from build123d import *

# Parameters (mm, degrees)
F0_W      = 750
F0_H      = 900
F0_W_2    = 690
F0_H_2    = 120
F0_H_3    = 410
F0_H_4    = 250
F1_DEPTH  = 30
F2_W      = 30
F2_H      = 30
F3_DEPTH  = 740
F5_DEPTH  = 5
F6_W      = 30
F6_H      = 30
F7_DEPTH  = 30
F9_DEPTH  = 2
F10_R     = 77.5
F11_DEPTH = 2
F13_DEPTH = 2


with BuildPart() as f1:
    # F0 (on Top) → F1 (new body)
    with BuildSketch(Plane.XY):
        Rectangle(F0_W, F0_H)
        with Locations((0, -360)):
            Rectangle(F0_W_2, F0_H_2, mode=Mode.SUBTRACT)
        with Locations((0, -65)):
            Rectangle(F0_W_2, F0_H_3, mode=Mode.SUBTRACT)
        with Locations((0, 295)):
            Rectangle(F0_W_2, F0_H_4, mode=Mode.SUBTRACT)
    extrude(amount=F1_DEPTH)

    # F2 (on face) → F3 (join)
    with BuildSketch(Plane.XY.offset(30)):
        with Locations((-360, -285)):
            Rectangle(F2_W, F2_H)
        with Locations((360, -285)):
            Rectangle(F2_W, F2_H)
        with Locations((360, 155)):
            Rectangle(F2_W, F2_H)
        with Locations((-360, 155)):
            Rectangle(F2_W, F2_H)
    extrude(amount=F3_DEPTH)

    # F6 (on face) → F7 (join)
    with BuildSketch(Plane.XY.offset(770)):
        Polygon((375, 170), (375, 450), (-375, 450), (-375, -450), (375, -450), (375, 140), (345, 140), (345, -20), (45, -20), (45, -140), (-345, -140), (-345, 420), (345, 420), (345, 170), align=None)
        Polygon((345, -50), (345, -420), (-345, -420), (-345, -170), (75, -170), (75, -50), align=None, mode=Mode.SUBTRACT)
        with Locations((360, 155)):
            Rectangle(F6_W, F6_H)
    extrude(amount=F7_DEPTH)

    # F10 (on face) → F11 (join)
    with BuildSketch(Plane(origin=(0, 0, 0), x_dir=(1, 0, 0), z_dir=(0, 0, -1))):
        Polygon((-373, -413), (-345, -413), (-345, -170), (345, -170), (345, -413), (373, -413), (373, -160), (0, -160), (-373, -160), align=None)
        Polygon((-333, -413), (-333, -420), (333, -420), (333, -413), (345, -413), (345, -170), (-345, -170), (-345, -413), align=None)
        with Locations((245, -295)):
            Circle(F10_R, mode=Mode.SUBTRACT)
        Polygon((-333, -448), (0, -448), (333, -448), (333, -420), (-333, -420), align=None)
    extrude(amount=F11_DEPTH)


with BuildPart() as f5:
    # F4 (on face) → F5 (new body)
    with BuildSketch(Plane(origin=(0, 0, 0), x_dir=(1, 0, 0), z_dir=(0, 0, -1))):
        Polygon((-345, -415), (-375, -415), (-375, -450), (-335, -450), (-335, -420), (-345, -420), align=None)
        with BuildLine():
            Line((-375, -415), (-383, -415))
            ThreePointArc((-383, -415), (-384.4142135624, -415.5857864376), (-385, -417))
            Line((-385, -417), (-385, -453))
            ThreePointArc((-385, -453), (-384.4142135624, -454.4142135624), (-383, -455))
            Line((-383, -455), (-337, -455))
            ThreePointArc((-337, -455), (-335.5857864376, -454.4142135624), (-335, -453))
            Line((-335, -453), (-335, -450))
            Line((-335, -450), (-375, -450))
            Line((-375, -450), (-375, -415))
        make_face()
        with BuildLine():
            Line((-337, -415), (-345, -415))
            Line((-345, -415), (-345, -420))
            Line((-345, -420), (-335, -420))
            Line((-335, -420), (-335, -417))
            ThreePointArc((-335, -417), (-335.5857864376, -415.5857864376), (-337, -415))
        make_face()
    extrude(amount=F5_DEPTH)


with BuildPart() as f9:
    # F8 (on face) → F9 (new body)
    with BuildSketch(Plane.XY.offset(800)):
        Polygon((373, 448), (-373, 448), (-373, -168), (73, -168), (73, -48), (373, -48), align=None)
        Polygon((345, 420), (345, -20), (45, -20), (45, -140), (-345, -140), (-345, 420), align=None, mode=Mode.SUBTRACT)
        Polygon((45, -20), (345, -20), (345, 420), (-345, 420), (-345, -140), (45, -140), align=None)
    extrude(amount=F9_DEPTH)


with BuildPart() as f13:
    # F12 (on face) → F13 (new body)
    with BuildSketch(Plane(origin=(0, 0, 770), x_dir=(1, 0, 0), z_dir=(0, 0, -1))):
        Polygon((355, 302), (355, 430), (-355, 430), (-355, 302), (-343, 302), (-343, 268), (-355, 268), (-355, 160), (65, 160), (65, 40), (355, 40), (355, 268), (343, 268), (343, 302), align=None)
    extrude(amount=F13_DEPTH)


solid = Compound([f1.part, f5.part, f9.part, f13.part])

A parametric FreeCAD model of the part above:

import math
import FreeCAD as App
import Part
import Sketcher
Q = App.Units.Quantity

doc = App.newDocument("Part")
body = doc.addObject("PartDesign::Body", "Body")

# Sketch on XY plane
sketch1 = body.newObject("Sketcher::SketchObject", "Sketch")
sketch1.AttachmentSupport = (doc.getObject("XY_Plane"), [""])
sketch1.MapMode = "FlatFace"
sketch1.addGeometry([
    Part.LineSegment(App.Vector(-375, 450, 0), App.Vector(-375, -450, 0)),  # 0
    Part.LineSegment(App.Vector(-375, -450, 0), App.Vector(375, -450, 0)),  # 1
    Part.LineSegment(App.Vector(375, -450, 0), App.Vector(375, 450, 0)),  # 2
    Part.LineSegment(App.Vector(375, 450, 0), App.Vector(-375, 450, 0)),  # 3
    Part.LineSegment(App.Vector(345, -420, 0), App.Vector(-345, -420, 0)),  # 4
    Part.LineSegment(App.Vector(-345, -420, 0), App.Vector(-345, -300, 0)),  # 5
    Part.LineSegment(App.Vector(-345, -300, 0), App.Vector(345, -300, 0)),  # 6
    Part.LineSegment(App.Vector(345, -300, 0), App.Vector(345, -420, 0)),  # 7
    Part.LineSegment(App.Vector(345, -270, 0), App.Vector(-345, -270, 0)),  # 8
    Part.LineSegment(App.Vector(-345, -270, 0), App.Vector(-345, 140, 0)),  # 9
    Part.LineSegment(App.Vector(-345, 140, 0), App.Vector(345, 140, 0)),  # 10
    Part.LineSegment(App.Vector(345, 140, 0), App.Vector(345, -270, 0)),  # 11
    Part.LineSegment(App.Vector(345, 170, 0), App.Vector(-345, 170, 0)),  # 12
    Part.LineSegment(App.Vector(-345, 170, 0), App.Vector(-345, 420, 0)),  # 13
    Part.LineSegment(App.Vector(-345, 420, 0), App.Vector(345, 420, 0)),  # 14
    Part.LineSegment(App.Vector(345, 420, 0), App.Vector(345, 170, 0)),  # 15
], False)
sketch1.addConstraint([
    Sketcher.Constraint("Coincident", 0, 2, 1, 1),
    Sketcher.Constraint("Coincident", 1, 2, 2, 1),
    Sketcher.Constraint("Coincident", 2, 2, 3, 1),
    Sketcher.Constraint("Coincident", 3, 2, 0, 1),
    Sketcher.Constraint("Coincident", 4, 2, 5, 1),
    Sketcher.Constraint("Coincident", 5, 2, 6, 1),
    Sketcher.Constraint("Coincident", 6, 2, 7, 1),
    Sketcher.Constraint("Coincident", 7, 2, 4, 1),
    Sketcher.Constraint("Coincident", 8, 2, 9, 1),
    Sketcher.Constraint("Coincident", 9, 2, 10, 1),
    Sketcher.Constraint("Coincident", 10, 2, 11, 1),
    Sketcher.Constraint("Coincident", 11, 2, 8, 1),
    Sketcher.Constraint("Coincident", 12, 2, 13, 1),
    Sketcher.Constraint("Coincident", 13, 2, 14, 1),
    Sketcher.Constraint("Coincident", 14, 2, 15, 1),
    Sketcher.Constraint("Coincident", 15, 2, 12, 1),
    Sketcher.Constraint("Vertical", 0),
    Sketcher.Constraint("Horizontal", 1),
    Sketcher.Constraint("Vertical", 2),
    Sketcher.Constraint("Horizontal", 3),
    Sketcher.Constraint("Horizontal", 4),
    Sketcher.Constraint("Vertical", 5),
    Sketcher.Constraint("Horizontal", 6),
    Sketcher.Constraint("Vertical", 7),
    Sketcher.Constraint("Horizontal", 8),
    Sketcher.Constraint("Vertical", 9),
    Sketcher.Constraint("Horizontal", 10),
    Sketcher.Constraint("Vertical", 11),
    Sketcher.Constraint("Horizontal", 12),
    Sketcher.Constraint("Vertical", 13),
    Sketcher.Constraint("Horizontal", 14),
    Sketcher.Constraint("Vertical", 15),
    Sketcher.Constraint("Symmetric", 0, 2, 2, 2, -1, 1),
    Sketcher.Constraint("Symmetric", 7, 2, 13, 2, -1, 1),
    Sketcher.Constraint("Vertical", 5, 2, 8, 2),
    Sketcher.Constraint("Vertical", 7, 2, 10, 2),
    Sketcher.Constraint("Vertical", 9, 2, 12, 2),
    Sketcher.Constraint("Vertical", 11, 2, 14, 2),
    Sketcher.Constraint("DistanceX", 1, 1, 1, 2, Q("750 mm")),
    Sketcher.Constraint("DistanceX", 4, 2, 4, 1, Q("690 mm")),
    Sketcher.Constraint("DistanceY", 0, 2, 0, 1, Q("900 mm")),
    Sketcher.Constraint("DistanceY", 5, 1, 5, 2, Q("120 mm")),
    Sketcher.Constraint("DistanceY", 9, 1, 9, 2, Q("410 mm")),
    Sketcher.Constraint("DistanceY", 13, 1, 13, 2, Q("250 mm")),
    Sketcher.Constraint("DistanceY", 4, 2, -1, 1, Q("420 mm")),
    Sketcher.Constraint("DistanceY", 8, 2, -1, 1, Q("270 mm")),
])
pad1 = body.newObject("PartDesign::Pad", "Pad")
pad1.Profile = sketch1
pad1.Length = 30

# Sketch on XY plane
sketch2 = body.newObject("Sketcher::SketchObject", "Sketch001")
sketch2.AttachmentSupport = (doc.getObject("XY_Plane"), [""])
sketch2.MapMode = "FlatFace"
sketch2.AttachmentOffset = App.Placement(App.Vector(0, 0, 30), App.Rotation())
sketch2.addGeometry([
    Part.LineSegment(App.Vector(-375, -270, 0), App.Vector(-375, -300, 0)),  # 0
    Part.LineSegment(App.Vector(-375, -300, 0), App.Vector(-345, -300, 0)),  # 1
    Part.LineSegment(App.Vector(-345, -300, 0), App.Vector(-345, -270, 0)),  # 2
    Part.LineSegment(App.Vector(-345, -270, 0), App.Vector(-375, -270, 0)),  # 3
    Part.LineSegment(App.Vector(345, -270, 0), App.Vector(345, -300, 0)),  # 4
    Part.LineSegment(App.Vector(345, -300, 0), App.Vector(375, -300, 0)),  # 5
    Part.LineSegment(App.Vector(375, -300, 0), App.Vector(375, -270, 0)),  # 6
    Part.LineSegment(App.Vector(375, -270, 0), App.Vector(345, -270, 0)),  # 7
    Part.LineSegment(App.Vector(345, 170, 0), App.Vector(345, 140, 0)),  # 8
    Part.LineSegment(App.Vector(345, 140, 0), App.Vector(375, 140, 0)),  # 9
    Part.LineSegment(App.Vector(375, 140, 0), App.Vector(375, 170, 0)),  # 10
    Part.LineSegment(App.Vector(375, 170, 0), App.Vector(345, 170, 0)),  # 11
    Part.LineSegment(App.Vector(-375, 170, 0), App.Vector(-375, 140, 0)),  # 12
    Part.LineSegment(App.Vector(-375, 140, 0), App.Vector(-345, 140, 0)),  # 13
    Part.LineSegment(App.Vector(-345, 140, 0), App.Vector(-345, 170, 0)),  # 14
    Part.LineSegment(App.Vector(-345, 170, 0), App.Vector(-375, 170, 0)),  # 15
], False)
sketch2.addConstraint([
    Sketcher.Constraint("Coincident", 0, 2, 1, 1),
    Sketcher.Constraint("Coincident", 1, 2, 2, 1),
    Sketcher.Constraint("Coincident", 2, 2, 3, 1),
    Sketcher.Constraint("Coincident", 3, 2, 0, 1),
    Sketcher.Constraint("Coincident", 4, 2, 5, 1),
    Sketcher.Constraint("Coincident", 5, 2, 6, 1),
    Sketcher.Constraint("Coincident", 6, 2, 7, 1),
    Sketcher.Constraint("Coincident", 7, 2, 4, 1),
    Sketcher.Constraint("Coincident", 8, 2, 9, 1),
    Sketcher.Constraint("Coincident", 9, 2, 10, 1),
    Sketcher.Constraint("Coincident", 10, 2, 11, 1),
    Sketcher.Constraint("Coincident", 11, 2, 8, 1),
    Sketcher.Constraint("Coincident", 12, 2, 13, 1),
    Sketcher.Constraint("Coincident", 13, 2, 14, 1),
    Sketcher.Constraint("Coincident", 14, 2, 15, 1),
    Sketcher.Constraint("Coincident", 15, 2, 12, 1),
    Sketcher.Constraint("Vertical", 0),
    Sketcher.Constraint("Horizontal", 1),
    Sketcher.Constraint("Vertical", 2),
    Sketcher.Constraint("Horizontal", 3),
    Sketcher.Constraint("Vertical", 4),
    Sketcher.Constraint("Horizontal", 5),
    Sketcher.Constraint("Vertical", 6),
    Sketcher.Constraint("Horizontal", 7),
    Sketcher.Constraint("Vertical", 8),
    Sketcher.Constraint("Horizontal", 9),
    Sketcher.Constraint("Vertical", 10),
    Sketcher.Constraint("Horizontal", 11),
    Sketcher.Constraint("Vertical", 12),
    Sketcher.Constraint("Horizontal", 13),
    Sketcher.Constraint("Vertical", 14),
    Sketcher.Constraint("Horizontal", 15),
    Sketcher.Constraint("Symmetric", 1, 2, 4, 2, -2),
    Sketcher.Constraint("Symmetric", 3, 2, 6, 2, -2),
    Sketcher.Constraint("Symmetric", 9, 2, 12, 2, -2),
    Sketcher.Constraint("Symmetric", 11, 2, 14, 2, -2),
    Sketcher.Constraint("Vertical", 7, 2, 8, 2),
    Sketcher.Constraint("Vertical", 6, 2, 9, 2),
    Sketcher.Constraint("Equal", 15, 0),
    Sketcher.Constraint("Equal", 6, 8),
    Sketcher.Constraint("DistanceX", 1, 1, 1, 2, Q("30 mm")),
    Sketcher.Constraint("DistanceX", 0, 2, -1, 1, Q("375 mm")),
    Sketcher.Constraint("DistanceY", 0, 2, -1, 1, Q("300 mm")),
    Sketcher.Constraint("DistanceY", -1, 1, 8, 2, Q("140 mm")),
])
pad2 = body.newObject("PartDesign::Pad", "Pad001")
pad2.Profile = sketch2
pad2.Length = 740

# Sketch on XY plane
sketch3 = body.newObject("Sketcher::SketchObject", "Sketch002")
sketch3.AttachmentSupport = (doc.getObject("XY_Plane"), [""])
sketch3.MapMode = "FlatFace"
sketch3.AttachmentOffset = App.Placement(App.Vector(0, 0, 770), App.Rotation())
sketch3.addGeometry([
    Part.LineSegment(App.Vector(375, 450, 0), App.Vector(-375, 450, 0)),  # 0
    Part.LineSegment(App.Vector(-375, 450, 0), App.Vector(-375, -450, 0)),  # 1
    Part.LineSegment(App.Vector(-375, -450, 0), App.Vector(375, -450, 0)),  # 2
    Part.LineSegment(App.Vector(375, -450, 0), App.Vector(375, 450, 0)),  # 3
    Part.LineSegment(App.Vector(345, 420, 0), App.Vector(345, -20, 0)),  # 4
    Part.LineSegment(App.Vector(345, -20, 0), App.Vector(45, -20, 0)),  # 5
    Part.LineSegment(App.Vector(45, -20, 0), App.Vector(45, -140, 0)),  # 6
    Part.LineSegment(App.Vector(45, -140, 0), App.Vector(-345, -140, 0)),  # 7
    Part.LineSegment(App.Vector(-345, -140, 0), App.Vector(-345, 420, 0)),  # 8
    Part.LineSegment(App.Vector(-345, 420, 0), App.Vector(345, 420, 0)),  # 9
    Part.LineSegment(App.Vector(75, -50, 0), App.Vector(345, -50, 0)),  # 10
    Part.LineSegment(App.Vector(345, -50, 0), App.Vector(345, -420, 0)),  # 11
    Part.LineSegment(App.Vector(345, -420, 0), App.Vector(-345, -420, 0)),  # 12
    Part.LineSegment(App.Vector(-345, -420, 0), App.Vector(-345, -170, 0)),  # 13
    Part.LineSegment(App.Vector(-345, -170, 0), App.Vector(75, -170, 0)),  # 14
    Part.LineSegment(App.Vector(75, -170, 0), App.Vector(75, -50, 0)),  # 15
], False)
sketch3.addConstraint([
    Sketcher.Constraint("Coincident", 0, 2, 1, 1),
    Sketcher.Constraint("Coincident", 1, 2, 2, 1),
    Sketcher.Constraint("Coincident", 2, 2, 3, 1),
    Sketcher.Constraint("Coincident", 3, 2, 0, 1),
    Sketcher.Constraint("Coincident", 4, 2, 5, 1),
    Sketcher.Constraint("Coincident", 5, 2, 6, 1),
    Sketcher.Constraint("Coincident", 6, 2, 7, 1),
    Sketcher.Constraint("Coincident", 7, 2, 8, 1),
    Sketcher.Constraint("Coincident", 8, 2, 9, 1),
    Sketcher.Constraint("Coincident", 9, 2, 4, 1),
    Sketcher.Constraint("Coincident", 10, 2, 11, 1),
    Sketcher.Constraint("Coincident", 11, 2, 12, 1),
    Sketcher.Constraint("Coincident", 12, 2, 13, 1),
    Sketcher.Constraint("Coincident", 13, 2, 14, 1),
    Sketcher.Constraint("Coincident", 14, 2, 15, 1),
    Sketcher.Constraint("Coincident", 15, 2, 10, 1),
    Sketcher.Constraint("Horizontal", 0),
    Sketcher.Constraint("Vertical", 1),
    Sketcher.Constraint("Horizontal", 2),
    Sketcher.Constraint("Vertical", 3),
    Sketcher.Constraint("Vertical", 4),
    Sketcher.Constraint("Horizontal", 5),
    Sketcher.Constraint("Vertical", 6),
    Sketcher.Constraint("Horizontal", 7),
    Sketcher.Constraint("Vertical", 8),
    Sketcher.Constraint("Horizontal", 9),
    Sketcher.Constraint("Horizontal", 10),
    Sketcher.Constraint("Vertical", 11),
    Sketcher.Constraint("Horizontal", 12),
    Sketcher.Constraint("Vertical", 13),
    Sketcher.Constraint("Horizontal", 14),
    Sketcher.Constraint("Vertical", 15),
    Sketcher.Constraint("Symmetric", 0, 2, 2, 2, -1, 1),
    Sketcher.Constraint("Symmetric", 8, 2, 11, 2, -1, 1),
    Sketcher.Constraint("Vertical", 9, 2, 10, 2),
    Sketcher.Constraint("Vertical", 8, 2, 12, 2),
    Sketcher.Constraint("Equal", 6, 15),
    Sketcher.Constraint("DistanceX", 0, 2, 0, 1, Q("750 mm")),
    Sketcher.Constraint("DistanceX", 5, 2, 5, 1, Q("300 mm")),
    Sketcher.Constraint("DistanceX", 7, 2, 7, 1, Q("390 mm")),
    Sketcher.Constraint("DistanceX", 10, 1, 10, 2, Q("270 mm")),
    Sketcher.Constraint("DistanceY", 1, 2, 1, 1, Q("900 mm")),
    Sketcher.Constraint("DistanceY", 4, 2, 4, 1, Q("440 mm")),
    Sketcher.Constraint("DistanceY", 6, 2, 6, 1, Q("120 mm")),
    Sketcher.Constraint("DistanceY", 11, 2, 11, 1, Q("370 mm")),
    Sketcher.Constraint("DistanceY", 4, 2, -1, 1, Q("20 mm")),
])
pad3 = body.newObject("PartDesign::Pad", "Pad002")
pad3.Profile = sketch3
pad3.Length = 30

# Sketch on XY plane
sketch4 = body.newObject("Sketcher::SketchObject", "Sketch003")
sketch4.AttachmentSupport = (doc.getObject("XY_Plane"), [""])
sketch4.MapMode = "FlatFace"
sketch4.addGeometry([
    Part.LineSegment(App.Vector(-373, 413, 0), App.Vector(-333, 413, 0)),  # 0
    Part.LineSegment(App.Vector(-333, 413, 0), App.Vector(-333, 448, 0)),  # 1
    Part.LineSegment(App.Vector(-333, 448, 0), App.Vector(333, 448, 0)),  # 2
    Part.LineSegment(App.Vector(333, 448, 0), App.Vector(333, 413, 0)),  # 3
    Part.LineSegment(App.Vector(333, 413, 0), App.Vector(373, 413, 0)),  # 4
    Part.LineSegment(App.Vector(373, 413, 0), App.Vector(373, 160, 0)),  # 5
    Part.LineSegment(App.Vector(373, 160, 0), App.Vector(-373, 160, 0)),  # 6
    Part.LineSegment(App.Vector(-373, 160, 0), App.Vector(-373, 413, 0)),  # 7
    Part.Circle(App.Vector(245, 295, 0), App.Vector(0, 0, 1), 78),  # 8
], False)
sketch4.addConstraint([
    Sketcher.Constraint("Coincident", 0, 2, 1, 1),
    Sketcher.Constraint("Coincident", 1, 2, 2, 1),
    Sketcher.Constraint("Coincident", 2, 2, 3, 1),
    Sketcher.Constraint("Coincident", 3, 2, 4, 1),
    Sketcher.Constraint("Coincident", 4, 2, 5, 1),
    Sketcher.Constraint("Coincident", 5, 2, 6, 1),
    Sketcher.Constraint("Coincident", 6, 2, 7, 1),
    Sketcher.Constraint("Coincident", 7, 2, 0, 1),
    Sketcher.Constraint("Horizontal", 0),
    Sketcher.Constraint("Vertical", 1),
    Sketcher.Constraint("Horizontal", 2),
    Sketcher.Constraint("Vertical", 3),
    Sketcher.Constraint("Horizontal", 4),
    Sketcher.Constraint("Vertical", 5),
    Sketcher.Constraint("Horizontal", 6),
    Sketcher.Constraint("Vertical", 7),
    Sketcher.Constraint("Symmetric", 0, 2, 3, 2, -2),
    Sketcher.Constraint("Equal", 0, 4),
    Sketcher.Constraint("Diameter", 8, Q("155 mm")),
    Sketcher.Constraint("DistanceX", 0, 1, 0, 2, Q("40 mm")),
    Sketcher.Constraint("DistanceX", 2, 1, 2, 2, Q("666 mm")),
    Sketcher.Constraint("DistanceY", 1, 1, 1, 2, Q("35 mm")),
    Sketcher.Constraint("DistanceY", 5, 2, 5, 1, Q("253 mm")),
    Sketcher.Constraint("DistanceX", -1, 1, 8, 3, Q("245 mm")),
    Sketcher.Constraint("DistanceY", -1, 1, 8, 3, Q("295 mm")),
    Sketcher.Constraint("DistanceY", -1, 1, 0, 2, Q("413 mm")),
])
pad4 = body.newObject("PartDesign::Pad", "Pad003")
pad4.Profile = sketch4
pad4.Length = 2
pad4.Reversed = True
body2 = doc.addObject("PartDesign::Body", "Body001")

# Sketch on XY plane
sketch5 = body2.newObject("Sketcher::SketchObject", "Sketch004")
sketch5.AttachmentSupport = (doc.getObject("XY_Plane001"), [""])
sketch5.MapMode = "FlatFace"
sketch5.addGeometry([
    Part.ArcOfCircle(Part.Circle(App.Vector(-383, 417, 0), App.Vector(0, 0, 1), 2), math.radians(180), math.radians(270)),  # 0
    Part.LineSegment(App.Vector(-385, 417, 0), App.Vector(-385, 453, 0)),  # 1
    Part.ArcOfCircle(Part.Circle(App.Vector(-383, 453, 0), App.Vector(0, 0, 1), 2), math.radians(90), math.radians(180)),  # 2
    Part.LineSegment(App.Vector(-383, 455, 0), App.Vector(-337, 455, 0)),  # 3
    Part.ArcOfCircle(Part.Circle(App.Vector(-337, 453, 0), App.Vector(0, 0, 1), 2), math.radians(0), math.radians(90)),  # 4
    Part.LineSegment(App.Vector(-335, 453, 0), App.Vector(-335, 417, 0)),  # 5
    Part.ArcOfCircle(Part.Circle(App.Vector(-337, 417, 0), App.Vector(0, 0, 1), 2), math.radians(-90), math.radians(0)),  # 6
    Part.LineSegment(App.Vector(-337, 415, 0), App.Vector(-383, 415, 0)),  # 7
], False)
sketch5.addConstraint([
    Sketcher.Constraint("Tangent", 0, 1, 1, 1),
    Sketcher.Constraint("Tangent", 1, 2, 2, 2),
    Sketcher.Constraint("Tangent", 2, 1, 3, 1),
    Sketcher.Constraint("Tangent", 3, 2, 4, 2),
    Sketcher.Constraint("Tangent", 4, 1, 5, 1),
    Sketcher.Constraint("Tangent", 5, 2, 6, 2),
    Sketcher.Constraint("Tangent", 6, 1, 7, 1),
    Sketcher.Constraint("Tangent", 7, 2, 0, 2),
    Sketcher.Constraint("Vertical", 1),
    Sketcher.Constraint("Horizontal", 3),
    Sketcher.Constraint("Vertical", 5),
    Sketcher.Constraint("Horizontal", 7),
    Sketcher.Constraint("Equal", 0, 2),
    Sketcher.Constraint("Equal", 2, 4),
    Sketcher.Constraint("Equal", 4, 6),
    Sketcher.Constraint("Radius", 0, Q("2 mm")),
    Sketcher.Constraint("DistanceX", 3, 1, 3, 2, Q("46 mm")),
    Sketcher.Constraint("DistanceY", 1, 1, 1, 2, Q("36 mm")),
    Sketcher.Constraint("DistanceX", 0, 3, -1, 1, Q("383 mm")),
    Sketcher.Constraint("DistanceY", -1, 1, 0, 3, Q("417 mm")),
])
pad5 = body2.newObject("PartDesign::Pad", "Pad004")
pad5.Profile = sketch5
pad5.Length = 5
pad5.Reversed = True
body3 = doc.addObject("PartDesign::Body", "Body002")

# Sketch on XY plane
sketch6 = body3.newObject("Sketcher::SketchObject", "Sketch005")
sketch6.AttachmentSupport = (doc.getObject("XY_Plane002"), [""])
sketch6.MapMode = "FlatFace"
sketch6.AttachmentOffset = App.Placement(App.Vector(0, 0, 800), App.Rotation())
sketch6.addGeometry([
    Part.LineSegment(App.Vector(373, 448, 0), App.Vector(-373, 448, 0)),  # 0
    Part.LineSegment(App.Vector(-373, 448, 0), App.Vector(-373, -168, 0)),  # 1
    Part.LineSegment(App.Vector(-373, -168, 0), App.Vector(73, -168, 0)),  # 2
    Part.LineSegment(App.Vector(73, -168, 0), App.Vector(73, -48, 0)),  # 3
    Part.LineSegment(App.Vector(73, -48, 0), App.Vector(373, -48, 0)),  # 4
    Part.LineSegment(App.Vector(373, -48, 0), App.Vector(373, 448, 0)),  # 5
], False)
sketch6.addConstraint([
    Sketcher.Constraint("Coincident", 0, 2, 1, 1),
    Sketcher.Constraint("Coincident", 1, 2, 2, 1),
    Sketcher.Constraint("Coincident", 2, 2, 3, 1),
    Sketcher.Constraint("Coincident", 3, 2, 4, 1),
    Sketcher.Constraint("Coincident", 4, 2, 5, 1),
    Sketcher.Constraint("Coincident", 5, 2, 0, 1),
    Sketcher.Constraint("Horizontal", 0),
    Sketcher.Constraint("Vertical", 1),
    Sketcher.Constraint("Horizontal", 2),
    Sketcher.Constraint("Vertical", 3),
    Sketcher.Constraint("Horizontal", 4),
    Sketcher.Constraint("Vertical", 5),
    Sketcher.Constraint("DistanceX", 0, 2, 0, 1, Q("746 mm")),
    Sketcher.Constraint("DistanceX", 2, 1, 2, 2, Q("446 mm")),
    Sketcher.Constraint("DistanceY", 1, 2, 1, 1, Q("616 mm")),
    Sketcher.Constraint("DistanceY", 3, 1, 3, 2, Q("120 mm")),
    Sketcher.Constraint("DistanceX", 0, 2, -1, 1, Q("373 mm")),
    Sketcher.Constraint("DistanceY", -1, 1, 0, 2, Q("448 mm")),
])
pad6 = body3.newObject("PartDesign::Pad", "Pad005")
pad6.Profile = sketch6
pad6.Length = 2
body4 = doc.addObject("PartDesign::Body", "Body003")

# Sketch on XY plane
sketch7 = body4.newObject("Sketcher::SketchObject", "Sketch006")
sketch7.AttachmentSupport = (doc.getObject("XY_Plane003"), [""])
sketch7.MapMode = "FlatFace"
sketch7.AttachmentOffset = App.Placement(App.Vector(0, 0, 770), App.Rotation())
sketch7.addGeometry([
    Part.LineSegment(App.Vector(355, -302, 0), App.Vector(355, -430, 0)),  # 0
    Part.LineSegment(App.Vector(355, -430, 0), App.Vector(-355, -430, 0)),  # 1
    Part.LineSegment(App.Vector(-355, -430, 0), App.Vector(-355, -302, 0)),  # 2
    Part.LineSegment(App.Vector(-355, -302, 0), App.Vector(-343, -302, 0)),  # 3
    Part.LineSegment(App.Vector(-343, -302, 0), App.Vector(-343, -268, 0)),  # 4
    Part.LineSegment(App.Vector(-343, -268, 0), App.Vector(-355, -268, 0)),  # 5
    Part.LineSegment(App.Vector(-355, -268, 0), App.Vector(-355, -160, 0)),  # 6
    Part.LineSegment(App.Vector(-355, -160, 0), App.Vector(65, -160, 0)),  # 7
    Part.LineSegment(App.Vector(65, -160, 0), App.Vector(65, -40, 0)),  # 8
    Part.LineSegment(App.Vector(65, -40, 0), App.Vector(355, -40, 0)),  # 9
    Part.LineSegment(App.Vector(355, -40, 0), App.Vector(355, -268, 0)),  # 10
    Part.LineSegment(App.Vector(355, -268, 0), App.Vector(343, -268, 0)),  # 11
    Part.LineSegment(App.Vector(343, -268, 0), App.Vector(343, -302, 0)),  # 12
    Part.LineSegment(App.Vector(343, -302, 0), App.Vector(355, -302, 0)),  # 13
], False)
sketch7.addConstraint([
    Sketcher.Constraint("Coincident", 0, 2, 1, 1),
    Sketcher.Constraint("Coincident", 1, 2, 2, 1),
    Sketcher.Constraint("Coincident", 2, 2, 3, 1),
    Sketcher.Constraint("Coincident", 3, 2, 4, 1),
    Sketcher.Constraint("Coincident", 4, 2, 5, 1),
    Sketcher.Constraint("Coincident", 5, 2, 6, 1),
    Sketcher.Constraint("Coincident", 6, 2, 7, 1),
    Sketcher.Constraint("Coincident", 7, 2, 8, 1),
    Sketcher.Constraint("Coincident", 8, 2, 9, 1),
    Sketcher.Constraint("Coincident", 9, 2, 10, 1),
    Sketcher.Constraint("Coincident", 10, 2, 11, 1),
    Sketcher.Constraint("Coincident", 11, 2, 12, 1),
    Sketcher.Constraint("Coincident", 12, 2, 13, 1),
    Sketcher.Constraint("Coincident", 13, 2, 0, 1),
    Sketcher.Constraint("Vertical", 0),
    Sketcher.Constraint("Horizontal", 1),
    Sketcher.Constraint("Vertical", 2),
    Sketcher.Constraint("Horizontal", 3),
    Sketcher.Constraint("Vertical", 4),
    Sketcher.Constraint("Horizontal", 5),
    Sketcher.Constraint("Vertical", 6),
    Sketcher.Constraint("Horizontal", 7),
    Sketcher.Constraint("Vertical", 8),
    Sketcher.Constraint("Horizontal", 9),
    Sketcher.Constraint("Vertical", 10),
    Sketcher.Constraint("Horizontal", 11),
    Sketcher.Constraint("Vertical", 12),
    Sketcher.Constraint("Horizontal", 13),
    Sketcher.Constraint("Symmetric", 5, 2, 10, 2, -2),
    Sketcher.Constraint("Symmetric", 3, 2, 12, 2, -2),
    Sketcher.Constraint("Vertical", 2, 2, 5, 2),
    Sketcher.Constraint("Vertical", 0, 2, 9, 2),
    Sketcher.Constraint("DistanceX", 1, 2, 1, 1, Q("710 mm")),
    Sketcher.Constraint("DistanceX", 3, 1, 3, 2, Q("12 mm")),
    Sketcher.Constraint("DistanceX", 7, 1, 7, 2, Q("420 mm")),
    Sketcher.Constraint("DistanceY", 0, 2, 0, 1, Q("128 mm")),
    Sketcher.Constraint("DistanceY", 4, 1, 4, 2, Q("34 mm")),
    Sketcher.Constraint("DistanceY", 6, 1, 6, 2, Q("108 mm")),
    Sketcher.Constraint("DistanceY", 8, 1, 8, 2, Q("120 mm")),
    Sketcher.Constraint("DistanceY", 0, 2, -1, 1, Q("430 mm")),
])
pad7 = body4.newObject("PartDesign::Pad", "Pad006")
pad7.Profile = sketch7
pad7.Length = 2
pad7.Reversed = True

doc.recompute()
